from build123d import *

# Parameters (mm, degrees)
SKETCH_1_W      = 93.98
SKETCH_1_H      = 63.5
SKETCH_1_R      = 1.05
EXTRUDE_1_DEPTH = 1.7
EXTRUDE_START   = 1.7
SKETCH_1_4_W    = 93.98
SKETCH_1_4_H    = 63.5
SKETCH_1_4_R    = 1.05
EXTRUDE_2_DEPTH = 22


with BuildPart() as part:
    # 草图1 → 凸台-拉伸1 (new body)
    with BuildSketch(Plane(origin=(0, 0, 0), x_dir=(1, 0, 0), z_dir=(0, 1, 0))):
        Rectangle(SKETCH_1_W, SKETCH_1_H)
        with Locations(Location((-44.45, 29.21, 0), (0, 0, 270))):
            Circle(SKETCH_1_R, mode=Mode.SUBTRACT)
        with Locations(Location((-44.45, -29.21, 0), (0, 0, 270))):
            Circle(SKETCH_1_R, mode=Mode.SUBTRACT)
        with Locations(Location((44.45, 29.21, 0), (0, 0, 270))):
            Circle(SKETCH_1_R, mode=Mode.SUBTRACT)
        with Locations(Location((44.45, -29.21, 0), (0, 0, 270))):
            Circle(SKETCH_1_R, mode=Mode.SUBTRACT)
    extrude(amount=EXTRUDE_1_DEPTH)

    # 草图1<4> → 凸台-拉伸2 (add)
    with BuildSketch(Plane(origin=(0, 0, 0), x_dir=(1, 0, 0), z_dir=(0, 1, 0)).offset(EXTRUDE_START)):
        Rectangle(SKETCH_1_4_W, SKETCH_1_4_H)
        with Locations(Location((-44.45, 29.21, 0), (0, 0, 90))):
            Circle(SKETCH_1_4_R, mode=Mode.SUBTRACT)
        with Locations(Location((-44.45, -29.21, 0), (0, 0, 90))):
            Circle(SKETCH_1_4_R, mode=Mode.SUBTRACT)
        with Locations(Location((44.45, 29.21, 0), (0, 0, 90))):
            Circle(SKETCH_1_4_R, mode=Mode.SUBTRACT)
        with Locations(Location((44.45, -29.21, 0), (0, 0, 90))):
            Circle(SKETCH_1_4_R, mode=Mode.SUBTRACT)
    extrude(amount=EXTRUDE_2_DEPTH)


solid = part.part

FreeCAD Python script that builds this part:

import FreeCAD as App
import Part
import Sketcher

V = App.Vector

doc = App.newDocument("Part")
body = doc.addObject("PartDesign::Body", "Body")

# Sketch on XZ plane
sketch1 = doc.addObject("Sketcher::SketchObject", "Sketch")
body.addObject(sketch1)
sketch1.AttachmentSupport = (doc.XZ_Plane, [""])
sketch1.MapMode = "FlatFace"
sketch1.addGeometry(Part.LineSegment(V(-47, -31.8, 0), V(-47, 31.8, 0)), False)
sketch1.addGeometry(Part.LineSegment(V(-47, 31.8, 0), V(47, 31.8, 0)), False)
sketch1.addGeometry(Part.LineSegment(V(47, 31.8, 0), V(47, -31.8, 0)), False)
sketch1.addGeometry(Part.LineSegment(V(47, -31.8, 0), V(-47, -31.8, 0)), False)
sketch1.addGeometry(Part.Circle(V(-44.5, 29.2, 0), V(0, 0, 1), 1.1), False)
sketch1.addGeometry(Part.Circle(V(44.5, 29.2, 0), V(0, 0, 1), 1.1), False)
sketch1.addGeometry(Part.Circle(V(-44.5, -29.2, 0), V(0, 0, 1), 1.1), False)
sketch1.addGeometry(Part.Circle(V(44.5, -29.2, 0), V(0, 0, 1), 1.1), False)
sketch1.addConstraint(Sketcher.Constraint("Coincident", 0, 2, 1, 1))
sketch1.addConstraint(Sketcher.Constraint("Coincident", 1, 2, 2, 1))
sketch1.addConstraint(Sketcher.Constraint("Coincident", 2, 2, 3, 1))
sketch1.addConstraint(Sketcher.Constraint("Coincident", 3, 2, 0, 1))
sketch1.addConstraint(Sketcher.Constraint("Vertical", 0))
sketch1.addConstraint(Sketcher.Constraint("Horizontal", 1))
sketch1.addConstraint(Sketcher.Constraint("Vertical", 2))
sketch1.addConstraint(Sketcher.Constraint("Horizontal", 3))
sketch1.addConstraint(Sketcher.Constraint("Equal", 4, 5))
sketch1.addConstraint(Sketcher.Constraint("Equal", 5, 6))
sketch1.addConstraint(Sketcher.Constraint("Equal", 6, 7))
sketch1.addConstraint(Sketcher.Constraint("Symmetric", 5, 3, 6, 3, -1, 1))
sketch1.addConstraint(Sketcher.Constraint("Symmetric", 4, 3, 7, 3, -1, 1))
sketch1.addConstraint(Sketcher.Constraint("Symmetric", 0, 2, 2, 2, -1, 1))
sketch1.addConstraint(Sketcher.Constraint("Symmetric", 4, 3, 5, 3, -2))
sketch1.addConstraint(Sketcher.Constraint("Diameter", 4, 2.1))
sketch1.addConstraint(Sketcher.Constraint("DistanceY", 0, 1, 0, 2, 63.5))
sketch1.addConstraint(Sketcher.Constraint("DistanceX", 1, 1, 1, 2, 93.98))
sketch1.addConstraint(Sketcher.Constraint("DistanceX", 4, 3, 5, 3, 88.9))
sketch1.addConstraint(Sketcher.Constraint("DistanceY", -1, 1, 4, 3, 29.21))
pad1 = doc.addObject("PartDesign::Pad", "Pad")
body.addObject(pad1)
pad1.Profile = sketch1
pad1.Length = 1.7
pad1.Reversed = True

# Sketch on XZ plane
sketch2 = doc.addObject("Sketcher::SketchObject", "Sketch001")
body.addObject(sketch2)
sketch2.AttachmentSupport = (doc.XZ_Plane, [""])
sketch2.MapMode = "FlatFace"
sketch2.AttachmentOffset = App.Placement(V(0, 0, -1.7), App.Rotation())
sketch2.addGeometry(Part.LineSegment(V(-47, -31.8, 0), V(-47, 31.8, 0)), False)
sketch2.addGeometry(Part.LineSegment(V(-47, 31.8, 0), V(47, 31.8, 0)), False)
sketch2.addGeometry(Part.LineSegment(V(47, 31.8, 0), V(47, -31.8, 0)), False)
sketch2.addGeometry(Part.LineSegment(V(47, -31.8, 0), V(-47, -31.8, 0)), False)
sketch2.addGeometry(Part.Circle(V(-44.5, 29.2, 0), V(0, 0, 1), 1.1), False)
sketch2.addGeometry(Part.Circle(V(44.5, 29.2, 0), V(0, 0, 1), 1.1), False)
sketch2.addGeometry(Part.Circle(V(-44.5, -29.2, 0), V(0, 0, 1), 1.1), False)
sketch2.addGeometry(Part.Circle(V(44.5, -29.2, 0), V(0, 0, 1), 1.1), False)
sketch2.addConstraint(Sketcher.Constraint("Coincident", 0, 2, 1, 1))
sketch2.addConstraint(Sketcher.Constraint("Coincident", 1, 2, 2, 1))
sketch2.addConstraint(Sketcher.Constraint("Coincident", 2, 2, 3, 1))
sketch2.addConstraint(Sketcher.Constraint("Coincident", 3, 2, 0, 1))
sketch2.addConstraint(Sketcher.Constraint("Vertical", 0))
sketch2.addConstraint(Sketcher.Constraint("Horizontal", 1))
sketch2.addConstraint(Sketcher.Constraint("Vertical", 2))
sketch2.addConstraint(Sketcher.Constraint("Horizontal", 3))
sketch2.addConstraint(Sketcher.Constraint("Equal", 4, 5))
sketch2.addConstraint(Sketcher.Constraint("Equal", 5, 6))
sketch2.addConstraint(Sketcher.Constraint("Equal", 6, 7))
sketch2.addConstraint(Sketcher.Constraint("Symmetric", 5, 3, 6, 3, -1, 1))
sketch2.addConstraint(Sketcher.Constraint("Symmetric", 4, 3, 7, 3, -1, 1))
sketch2.addConstraint(Sketcher.Constraint("Symmetric", 0, 2, 2, 2, -1, 1))
sketch2.addConstraint(Sketcher.Constraint("Symmetric", 4, 3, 5, 3, -2))
sketch2.addConstraint(Sketcher.Constraint("Diameter", 4, 2.1))
sketch2.addConstraint(Sketcher.Constraint("DistanceY", 0, 1, 0, 2, 63.5))
sketch2.addConstraint(Sketcher.Constraint("DistanceX", 1, 1, 1, 2, 93.98))
sketch2.addConstraint(Sketcher.Constraint("DistanceX", 4, 3, 5, 3, 88.9))
sketch2.addConstraint(Sketcher.Constraint("DistanceY", -1, 1, 4, 3, 29.21))
pad2 = doc.addObject("PartDesign::Pad", "Pad001")
body.addObject(pad2)
pad2.Profile = sketch2
pad2.Length = 22
pad2.Reversed = True

doc.recompute()
